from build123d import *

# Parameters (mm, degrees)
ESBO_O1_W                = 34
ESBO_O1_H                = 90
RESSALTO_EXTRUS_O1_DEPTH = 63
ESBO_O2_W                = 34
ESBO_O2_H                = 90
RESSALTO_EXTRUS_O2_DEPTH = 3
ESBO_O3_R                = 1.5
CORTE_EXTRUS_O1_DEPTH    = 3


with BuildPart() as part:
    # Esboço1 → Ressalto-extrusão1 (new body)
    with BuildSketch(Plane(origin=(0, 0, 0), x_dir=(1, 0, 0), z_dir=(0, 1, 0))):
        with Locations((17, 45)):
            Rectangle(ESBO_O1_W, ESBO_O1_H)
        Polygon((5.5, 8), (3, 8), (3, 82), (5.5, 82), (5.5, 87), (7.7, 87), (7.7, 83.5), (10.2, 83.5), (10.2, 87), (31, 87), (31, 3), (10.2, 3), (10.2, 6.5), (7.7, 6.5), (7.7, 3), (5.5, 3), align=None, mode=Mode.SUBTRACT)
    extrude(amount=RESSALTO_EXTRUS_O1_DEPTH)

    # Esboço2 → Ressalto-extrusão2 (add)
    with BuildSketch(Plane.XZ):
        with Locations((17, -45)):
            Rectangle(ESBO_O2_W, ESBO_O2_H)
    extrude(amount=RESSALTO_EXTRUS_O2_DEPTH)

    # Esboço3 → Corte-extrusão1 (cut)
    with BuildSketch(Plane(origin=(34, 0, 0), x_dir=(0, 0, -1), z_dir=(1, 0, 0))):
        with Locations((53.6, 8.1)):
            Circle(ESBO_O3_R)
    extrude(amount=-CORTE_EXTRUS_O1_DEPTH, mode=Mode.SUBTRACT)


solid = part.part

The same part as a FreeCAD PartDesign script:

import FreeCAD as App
import Part
import Sketcher

V = App.Vector


def add_polygon(sketch, points):
    """Adds a closed chain of lines whose ends are joined by coincident constraints."""
    first, n = sketch.GeometryCount, len(points)
    for a, b in zip(points, points[1:] + points[:1]):
        sketch.addGeometry(Part.LineSegment(App.Vector(*a, 0), App.Vector(*b, 0)), False)
    for i in range(n):
        sketch.addConstraint(Sketcher.Constraint("Coincident", first + i, 2, first + (i + 1) % n, 1))

doc = App.newDocument("Part")
body = doc.addObject("PartDesign::Body", "Body")

# Sketch on XZ plane
sketch1 = doc.addObject("Sketcher::SketchObject", "Sketch")
body.addObject(sketch1)
sketch1.AttachmentSupport = (doc.XZ_Plane, [""])
sketch1.MapMode = "FlatFace"
add_polygon(sketch1, [(0, -90), (0, 0), (34, 0), (34, -90)])  # lines 0-3
add_polygon(sketch1, [(5.5, -3), (5.5, -8), (3, -8), (3, -82), (5.5, -82), (5.5, -87), (7.7, -87), (7.7, -83.5), (10.2, -83.5), (10.2, -87), (31, -87), (31, -3), (10.2, -3), (10.2, -6.5), (7.7, -6.5), (7.7, -3)])  # lines 4-19
sketch1.addConstraint(Sketcher.Constraint("Vertical", 0))
sketch1.addConstraint(Sketcher.Constraint("Horizontal", 1))
sketch1.addConstraint(Sketcher.Constraint("Vertical", 2))
sketch1.addConstraint(Sketcher.Constraint("Horizontal", 3))
sketch1.addConstraint(Sketcher.Constraint("Vertical", 4))
sketch1.addConstraint(Sketcher.Constraint("Horizontal", 5))
sketch1.addConstraint(Sketcher.Constraint("Vertical", 6))
sketch1.addConstraint(Sketcher.Constraint("Horizontal", 7))
sketch1.addConstraint(Sketcher.Constraint("Vertical", 8))
sketch1.addConstraint(Sketcher.Constraint("Horizontal", 9))
sketch1.addConstraint(Sketcher.Constraint("Vertical", 10))
sketch1.addConstraint(Sketcher.Constraint("Horizontal", 11))
sketch1.addConstraint(Sketcher.Constraint("Vertical", 12))
sketch1.addConstraint(Sketcher.Constraint("Horizontal", 13))
sketch1.addConstraint(Sketcher.Constraint("Vertical", 14))
sketch1.addConstraint(Sketcher.Constraint("Horizontal", 15))
sketch1.addConstraint(Sketcher.Constraint("Vertical", 16))
sketch1.addConstraint(Sketcher.Constraint("Horizontal", 17))
sketch1.addConstraint(Sketcher.Constraint("Vertical", 18))
sketch1.addConstraint(Sketcher.Constraint("Horizontal", 19))
sketch1.addConstraint(Sketcher.Constraint("Coincident", 0, 2, -1, 1))
sketch1.addConstraint(Sketcher.Constraint("Horizontal", 9, 2, 12, 2))
sketch1.addConstraint(Sketcher.Constraint("Horizontal", 15, 2, 18, 2))
sketch1.addConstraint(Sketcher.Constraint("Vertical", 4, 2, 7, 2))
sketch1.addConstraint(Sketcher.Constraint("Vertical", 12, 2, 15, 2))
sketch1.addConstraint(Sketcher.Constraint("Vertical", 10, 2, 17, 2))
sketch1.addConstraint(Sketcher.Constraint("Equal", 7, 11))
sketch1.addConstraint(Sketcher.Constraint("Equal", 4, 8))
sketch1.addConstraint(Sketcher.Constraint("Equal", 12, 16))
sketch1.addConstraint(Sketcher.Constraint("DistanceX", 1, 1, 1, 2, 34.0))
sketch1.addConstraint(Sketcher.Constraint("DistanceY", 0, 1, 0, 2, 90.0))
sketch1.addConstraint(Sketcher.Constraint("DistanceY", 4, 2, 4, 1, 5.0))
sketch1.addConstraint(Sketcher.Constraint("DistanceY", 6, 2, 6, 1, 74.0))
sketch1.addConstraint(Sketcher.Constraint("DistanceX", 5, 2, 5, 1, 2.5))
sketch1.addConstraint(Sketcher.Constraint("DistanceX", 9, 1, 9, 2, 2.2))
sketch1.addConstraint(Sketcher.Constraint("DistanceX", 13, 1, 13, 2, 20.8))
sketch1.addConstraint(Sketcher.Constraint("DistanceY", 10, 1, 10, 2, 3.5))
sketch1.addConstraint(Sketcher.Constraint("DistanceY", 4, 2, -1, 1, 8.0))
sketch1.addConstraint(Sketcher.Constraint("DistanceX", -1, 1, 5, 2, 3.0))
pad1 = doc.addObject("PartDesign::Pad", "Pad")
body.addObject(pad1)
pad1.Profile = sketch1
pad1.Length = 63
pad1.Reversed = True

# Sketch on XZ plane
sketch2 = doc.addObject("Sketcher::SketchObject", "Sketch001")
body.addObject(sketch2)
sketch2.AttachmentSupport = (doc.XZ_Plane, [""])
sketch2.MapMode = "FlatFace"
add_polygon(sketch2, [(0, 0), (0, -90), (34, -90), (34, 0)])  # lines 0-3
sketch2.addConstraint(Sketcher.Constraint("Vertical", 0))
sketch2.addConstraint(Sketcher.Constraint("Horizontal", 1))
sketch2.addConstraint(Sketcher.Constraint("Vertical", 2))
sketch2.addConstraint(Sketcher.Constraint("Horizontal", 3))
sketch2.addConstraint(Sketcher.Constraint("Coincident", 3, 2, -1, 1))
sketch2.addConstraint(Sketcher.Constraint("DistanceX", 1, 1, 1, 2, 34.0))
sketch2.addConstraint(Sketcher.Constraint("DistanceY", 0, 2, 0, 1, 90.0))
pad2 = doc.addObject("PartDesign::Pad", "Pad001")
body.addObject(pad2)
pad2.Profile = sketch2
pad2.Length = 3

# Sketch on YZ plane
sketch3 = doc.addObject("Sketcher::SketchObject", "Sketch002")
body.addObject(sketch3)
sketch3.AttachmentSupport = (doc.YZ_Plane, [""])
sketch3.MapMode = "FlatFace"
sketch3.AttachmentOffset = App.Placement(V(0, 0, 34), App.Rotation())
sketch3.addGeometry(Part.Circle(V(8.1, -53.6, 0), V(0, 0, 1), 1.5), False)
sketch3.addConstraint(Sketcher.Constraint("Diameter", 0, 3.0))
sketch3.addConstraint(Sketcher.Constraint("DistanceX", -1, 1, 0, 3, 8.1))
sketch3.addConstraint(Sketcher.Constraint("DistanceY", 0, 3, -1, 1, 53.6))
pocket1 = doc.addObject("PartDesign::Pocket", "Pocket")
body.addObject(pocket1)
pocket1.Profile = sketch3
pocket1.Length = 3

doc.recompute()
